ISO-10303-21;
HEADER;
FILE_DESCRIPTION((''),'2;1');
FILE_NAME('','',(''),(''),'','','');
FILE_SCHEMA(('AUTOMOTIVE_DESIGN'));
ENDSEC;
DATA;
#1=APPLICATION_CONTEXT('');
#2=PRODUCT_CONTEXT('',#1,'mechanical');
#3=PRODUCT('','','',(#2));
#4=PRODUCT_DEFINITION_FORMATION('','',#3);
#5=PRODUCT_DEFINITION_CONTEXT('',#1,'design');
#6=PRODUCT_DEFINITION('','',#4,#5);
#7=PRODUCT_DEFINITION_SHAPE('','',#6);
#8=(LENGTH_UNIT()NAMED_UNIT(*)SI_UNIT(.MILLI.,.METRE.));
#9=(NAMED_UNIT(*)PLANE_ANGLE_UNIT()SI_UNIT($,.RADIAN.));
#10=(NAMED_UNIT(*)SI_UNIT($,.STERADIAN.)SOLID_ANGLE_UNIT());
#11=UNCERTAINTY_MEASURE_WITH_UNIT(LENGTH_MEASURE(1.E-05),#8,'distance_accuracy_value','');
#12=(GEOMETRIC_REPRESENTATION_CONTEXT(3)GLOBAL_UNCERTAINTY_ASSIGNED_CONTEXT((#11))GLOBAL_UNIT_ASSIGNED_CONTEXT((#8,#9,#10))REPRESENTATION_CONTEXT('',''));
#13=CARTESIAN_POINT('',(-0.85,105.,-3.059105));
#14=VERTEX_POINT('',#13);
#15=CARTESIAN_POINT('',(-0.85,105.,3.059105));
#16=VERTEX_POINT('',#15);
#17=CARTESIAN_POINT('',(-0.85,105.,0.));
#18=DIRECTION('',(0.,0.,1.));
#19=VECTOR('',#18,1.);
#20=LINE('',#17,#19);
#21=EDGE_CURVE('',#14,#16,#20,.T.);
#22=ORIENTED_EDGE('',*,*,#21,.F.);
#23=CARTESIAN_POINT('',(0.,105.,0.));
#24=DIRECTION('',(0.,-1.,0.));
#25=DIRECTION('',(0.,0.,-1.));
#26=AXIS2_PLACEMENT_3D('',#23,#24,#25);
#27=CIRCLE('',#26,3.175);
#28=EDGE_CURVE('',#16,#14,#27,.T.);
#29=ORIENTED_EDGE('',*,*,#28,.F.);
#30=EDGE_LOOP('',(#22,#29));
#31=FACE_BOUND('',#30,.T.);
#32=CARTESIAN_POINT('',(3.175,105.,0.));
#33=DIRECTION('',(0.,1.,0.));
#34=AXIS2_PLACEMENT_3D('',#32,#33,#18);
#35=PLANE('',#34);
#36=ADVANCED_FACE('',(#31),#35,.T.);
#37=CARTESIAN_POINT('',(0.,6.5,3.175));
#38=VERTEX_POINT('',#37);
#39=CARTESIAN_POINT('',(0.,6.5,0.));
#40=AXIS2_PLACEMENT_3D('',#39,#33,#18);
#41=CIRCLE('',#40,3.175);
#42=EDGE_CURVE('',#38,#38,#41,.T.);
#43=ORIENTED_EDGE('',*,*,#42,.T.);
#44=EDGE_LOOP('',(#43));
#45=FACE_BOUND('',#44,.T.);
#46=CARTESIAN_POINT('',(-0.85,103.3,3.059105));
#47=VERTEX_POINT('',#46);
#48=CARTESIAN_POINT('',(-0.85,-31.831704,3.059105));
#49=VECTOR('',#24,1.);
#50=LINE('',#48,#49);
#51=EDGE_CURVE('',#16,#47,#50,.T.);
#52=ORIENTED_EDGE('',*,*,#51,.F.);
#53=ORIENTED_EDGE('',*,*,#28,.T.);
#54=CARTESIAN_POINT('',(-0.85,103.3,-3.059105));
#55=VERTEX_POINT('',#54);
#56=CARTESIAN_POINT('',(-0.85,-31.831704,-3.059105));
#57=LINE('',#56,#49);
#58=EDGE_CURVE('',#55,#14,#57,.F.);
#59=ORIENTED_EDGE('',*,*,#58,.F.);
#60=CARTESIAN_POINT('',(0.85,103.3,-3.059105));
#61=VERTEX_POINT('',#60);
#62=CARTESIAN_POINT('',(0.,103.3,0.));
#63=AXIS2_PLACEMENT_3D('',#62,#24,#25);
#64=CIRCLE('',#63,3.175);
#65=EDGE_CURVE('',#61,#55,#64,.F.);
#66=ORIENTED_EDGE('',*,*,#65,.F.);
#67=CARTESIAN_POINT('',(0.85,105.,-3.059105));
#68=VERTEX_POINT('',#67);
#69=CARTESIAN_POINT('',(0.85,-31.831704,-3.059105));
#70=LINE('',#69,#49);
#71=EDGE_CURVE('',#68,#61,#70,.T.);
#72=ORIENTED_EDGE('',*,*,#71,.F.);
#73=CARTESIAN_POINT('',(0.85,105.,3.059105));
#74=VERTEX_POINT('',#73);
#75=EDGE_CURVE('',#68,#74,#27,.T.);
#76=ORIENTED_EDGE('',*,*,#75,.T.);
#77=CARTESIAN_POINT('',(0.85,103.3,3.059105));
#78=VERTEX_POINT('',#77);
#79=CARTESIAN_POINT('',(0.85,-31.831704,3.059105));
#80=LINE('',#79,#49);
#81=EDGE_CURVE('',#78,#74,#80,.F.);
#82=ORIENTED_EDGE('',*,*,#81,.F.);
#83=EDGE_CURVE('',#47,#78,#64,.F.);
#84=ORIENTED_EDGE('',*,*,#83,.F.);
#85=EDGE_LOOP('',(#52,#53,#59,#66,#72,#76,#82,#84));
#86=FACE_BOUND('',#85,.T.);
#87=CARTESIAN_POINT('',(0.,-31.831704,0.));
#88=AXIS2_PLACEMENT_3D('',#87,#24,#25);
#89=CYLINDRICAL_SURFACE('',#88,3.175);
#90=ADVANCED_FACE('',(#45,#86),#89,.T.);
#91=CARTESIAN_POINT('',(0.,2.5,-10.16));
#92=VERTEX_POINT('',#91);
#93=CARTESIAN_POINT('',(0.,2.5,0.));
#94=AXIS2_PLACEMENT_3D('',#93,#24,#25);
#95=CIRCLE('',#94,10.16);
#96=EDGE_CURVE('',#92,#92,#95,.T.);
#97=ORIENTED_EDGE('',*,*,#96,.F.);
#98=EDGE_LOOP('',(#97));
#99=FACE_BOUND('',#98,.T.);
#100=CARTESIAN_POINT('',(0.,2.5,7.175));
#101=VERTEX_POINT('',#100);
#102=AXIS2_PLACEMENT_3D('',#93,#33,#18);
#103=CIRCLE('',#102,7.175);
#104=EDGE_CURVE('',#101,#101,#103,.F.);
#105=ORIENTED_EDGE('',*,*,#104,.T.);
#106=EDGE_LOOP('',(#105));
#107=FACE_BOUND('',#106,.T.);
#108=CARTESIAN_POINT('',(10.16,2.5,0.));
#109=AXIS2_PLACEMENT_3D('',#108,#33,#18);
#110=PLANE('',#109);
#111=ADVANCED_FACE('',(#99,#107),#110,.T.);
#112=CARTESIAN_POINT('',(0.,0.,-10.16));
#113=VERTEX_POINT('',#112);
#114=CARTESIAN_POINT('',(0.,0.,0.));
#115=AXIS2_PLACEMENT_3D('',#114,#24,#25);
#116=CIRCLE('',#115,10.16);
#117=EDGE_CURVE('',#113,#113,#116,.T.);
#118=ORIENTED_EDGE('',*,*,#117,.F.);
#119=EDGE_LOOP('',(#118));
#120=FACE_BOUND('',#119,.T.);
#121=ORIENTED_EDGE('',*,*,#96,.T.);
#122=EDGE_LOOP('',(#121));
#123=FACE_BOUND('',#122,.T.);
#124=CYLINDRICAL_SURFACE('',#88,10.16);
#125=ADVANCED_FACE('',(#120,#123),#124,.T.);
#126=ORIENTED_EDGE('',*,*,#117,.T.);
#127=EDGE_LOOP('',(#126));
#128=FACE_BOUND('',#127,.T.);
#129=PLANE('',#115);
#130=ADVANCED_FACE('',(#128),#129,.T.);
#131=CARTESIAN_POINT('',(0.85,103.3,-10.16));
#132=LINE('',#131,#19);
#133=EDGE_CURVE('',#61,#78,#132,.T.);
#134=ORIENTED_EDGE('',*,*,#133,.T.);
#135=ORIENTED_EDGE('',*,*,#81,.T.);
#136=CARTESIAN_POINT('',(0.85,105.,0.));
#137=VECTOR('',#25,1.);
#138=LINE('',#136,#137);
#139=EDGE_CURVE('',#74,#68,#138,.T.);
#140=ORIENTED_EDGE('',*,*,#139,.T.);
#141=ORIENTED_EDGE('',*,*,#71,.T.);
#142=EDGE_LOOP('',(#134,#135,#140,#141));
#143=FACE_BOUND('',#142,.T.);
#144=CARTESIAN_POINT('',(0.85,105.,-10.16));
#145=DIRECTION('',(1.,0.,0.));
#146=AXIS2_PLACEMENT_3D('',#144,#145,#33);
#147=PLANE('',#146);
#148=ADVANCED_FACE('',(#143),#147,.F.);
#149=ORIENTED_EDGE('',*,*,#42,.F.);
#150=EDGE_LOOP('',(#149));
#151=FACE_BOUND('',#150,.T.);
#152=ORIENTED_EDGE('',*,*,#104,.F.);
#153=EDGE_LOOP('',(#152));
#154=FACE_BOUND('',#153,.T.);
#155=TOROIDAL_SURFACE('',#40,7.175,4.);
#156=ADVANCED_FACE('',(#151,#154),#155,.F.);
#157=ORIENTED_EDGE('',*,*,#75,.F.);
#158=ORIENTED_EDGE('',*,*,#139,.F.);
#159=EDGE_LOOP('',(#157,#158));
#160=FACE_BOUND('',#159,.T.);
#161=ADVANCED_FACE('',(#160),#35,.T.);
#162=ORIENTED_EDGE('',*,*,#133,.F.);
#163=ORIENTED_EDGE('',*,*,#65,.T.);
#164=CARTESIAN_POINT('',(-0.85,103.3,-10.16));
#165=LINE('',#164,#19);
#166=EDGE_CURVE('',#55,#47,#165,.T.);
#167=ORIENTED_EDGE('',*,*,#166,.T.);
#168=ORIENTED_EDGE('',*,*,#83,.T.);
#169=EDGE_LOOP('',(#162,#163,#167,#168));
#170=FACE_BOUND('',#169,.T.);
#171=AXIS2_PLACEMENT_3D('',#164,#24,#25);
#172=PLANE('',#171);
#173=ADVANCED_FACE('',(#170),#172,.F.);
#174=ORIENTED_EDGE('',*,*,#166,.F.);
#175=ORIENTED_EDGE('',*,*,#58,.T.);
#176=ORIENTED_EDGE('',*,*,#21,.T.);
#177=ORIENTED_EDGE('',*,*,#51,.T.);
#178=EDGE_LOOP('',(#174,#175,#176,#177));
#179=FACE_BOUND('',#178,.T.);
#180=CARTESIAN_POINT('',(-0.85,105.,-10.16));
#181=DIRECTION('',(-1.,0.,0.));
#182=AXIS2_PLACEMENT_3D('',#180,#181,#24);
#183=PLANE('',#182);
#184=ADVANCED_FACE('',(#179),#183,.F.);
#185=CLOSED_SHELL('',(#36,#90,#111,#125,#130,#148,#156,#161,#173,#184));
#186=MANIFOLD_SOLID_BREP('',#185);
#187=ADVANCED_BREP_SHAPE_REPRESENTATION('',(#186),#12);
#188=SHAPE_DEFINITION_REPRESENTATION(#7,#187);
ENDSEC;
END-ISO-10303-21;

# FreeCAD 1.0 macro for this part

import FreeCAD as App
import Part
import Sketcher
from FreeCAD import Vector
Q = App.Units.Quantity


def edges_at(feature, points):
    """Names of the edges that pass closest to the given points."""
    edges = feature.Shape.Edges
    near = lambda p: min(range(len(edges)), key=lambda i: edges[i].distToShape(Part.Vertex(*p))[0])
    return sorted({f"Edge{near(p) + 1}" for p in points})

doc = App.newDocument("Part")
body = doc.addObject("PartDesign::Body", "Body")

sketch1 = doc.addObject("Sketcher::SketchObject", "Sketch")
body.addObject(sketch1)
sketch1.AttachmentSupport = (doc.XY_Plane, [""])
sketch1.MapMode = "FlatFace"
sketch1.addGeometry([
    Part.LineSegment(Vector(0, 0, 0), Vector(10.2, 0, 0)),
    Part.LineSegment(Vector(10.2, 0, 0), Vector(10.2, 2.5, 0)),
    Part.LineSegment(Vector(10.2, 2.5, 0), Vector(3.2, 2.5, 0)),
    Part.LineSegment(Vector(3.2, 2.5, 0), Vector(3.2, 105, 0)),
    Part.LineSegment(Vector(3.2, 105, 0), Vector(0, 105, 0)),
    Part.LineSegment(Vector(0, 105, 0), Vector(0, 0, 0)),
], False)
sketch1.addConstraint([
    Sketcher.Constraint("Coincident", 0, 2, 1, 1),
    Sketcher.Constraint("Coincident", 1, 2, 2, 1),
    Sketcher.Constraint("Coincident", 2, 2, 3, 1),
    Sketcher.Constraint("Coincident", 3, 2, 4, 1),
    Sketcher.Constraint("Coincident", 4, 2, 5, 1),
    Sketcher.Constraint("Coincident", 5, 2, 0, 1),
    Sketcher.Constraint("Horizontal", 0),
    Sketcher.Constraint("Vertical", 1),
    Sketcher.Constraint("Horizontal", 2),
    Sketcher.Constraint("Vertical", 3),
    Sketcher.Constraint("Horizontal", 4),
    Sketcher.Constraint("Vertical", 5),
    Sketcher.Constraint("Coincident", 5, 2, -1, 1),
    Sketcher.Constraint("DistanceY", 5, 2, 5, 1, Q("105 mm")),
    Sketcher.Constraint("DistanceY", 1, 1, 1, 2, Q("2.5 mm")),
    Sketcher.Constraint("DistanceX", 0, 1, 0, 2, Q("10.16 mm")),
    Sketcher.Constraint("DistanceX", 2, 2, 2, 1, Q("6.985 mm")),
])
revolution = doc.addObject("PartDesign::Revolution", "Revolution")
body.addObject(revolution)
revolution.Profile = sketch1
revolution.ReferenceAxis = (sketch1, ["V_Axis"])
revolution.Angle = 360
doc.recompute()

fillet = doc.addObject("PartDesign::Fillet", "Fillet")
body.addObject(fillet)
fillet.Base = (revolution, edges_at(revolution, [(0, 2.5, 3.175)]))
fillet.Radius = 4

sketch2 = doc.addObject("Sketcher::SketchObject", "Sketch001")
body.addObject(sketch2)
sketch2.AttachmentSupport = (doc.XY_Plane, [""])
sketch2.MapMode = "FlatFace"
sketch2.addGeometry([
    Part.LineSegment(Vector(-0.8, 105, 0), Vector(-0.8, 103.3, 0)),
    Part.LineSegment(Vector(-0.8, 103.3, 0), Vector(0.8, 103.3, 0)),
    Part.LineSegment(Vector(0.8, 103.3, 0), Vector(0.8, 105, 0)),
    Part.LineSegment(Vector(0.8, 105, 0), Vector(-0.8, 105, 0)),
], False)
sketch2.addConstraint([
    Sketcher.Constraint("Coincident", 0, 2, 1, 1),
    Sketcher.Constraint("Coincident", 1, 2, 2, 1),
    Sketcher.Constraint("Coincident", 2, 2, 3, 1),
    Sketcher.Constraint("Coincident", 3, 2, 0, 1),
    Sketcher.Constraint("Vertical", 0),
    Sketcher.Constraint("Horizontal", 1),
    Sketcher.Constraint("Vertical", 2),
    Sketcher.Constraint("Horizontal", 3),
    Sketcher.Constraint("Equal", 3, 0),
    Sketcher.Constraint("DistanceX", 1, 1, 1, 2, Q("1.7 mm")),
    Sketcher.Constraint("DistanceY", -1, 1, 2, 2, Q("105 mm")),
    Sketcher.Constraint("DistanceX", 0, 2, -1, 1, Q("0.85 mm")),
])
pocket1 = doc.addObject("PartDesign::Pocket", "Pocket")
body.addObject(pocket1)
pocket1.Profile = sketch2
pocket1.Type = "ThroughAll"
pocket1.Midplane = True

doc.recompute()
